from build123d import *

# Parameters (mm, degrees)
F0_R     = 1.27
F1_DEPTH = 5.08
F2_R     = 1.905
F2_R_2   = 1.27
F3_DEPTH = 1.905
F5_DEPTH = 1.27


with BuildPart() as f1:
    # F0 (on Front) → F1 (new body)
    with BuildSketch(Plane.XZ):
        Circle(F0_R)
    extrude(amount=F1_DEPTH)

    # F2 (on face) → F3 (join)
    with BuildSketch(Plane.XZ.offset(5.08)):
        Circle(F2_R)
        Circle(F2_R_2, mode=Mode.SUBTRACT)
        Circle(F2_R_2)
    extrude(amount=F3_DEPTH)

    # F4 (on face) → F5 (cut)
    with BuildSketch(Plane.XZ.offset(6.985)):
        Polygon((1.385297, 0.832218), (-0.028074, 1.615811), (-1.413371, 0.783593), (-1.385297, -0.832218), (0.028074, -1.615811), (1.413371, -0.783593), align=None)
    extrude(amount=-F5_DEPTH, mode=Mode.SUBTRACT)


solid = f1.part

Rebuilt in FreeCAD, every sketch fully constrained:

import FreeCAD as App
import Part
import Sketcher

V = App.Vector
Q = App.Units.Quantity

doc = App.newDocument("Part")
body = doc.addObject("PartDesign::Body", "Body")

# Sketch on XZ plane
sketch1 = doc.addObject("Sketcher::SketchObject", "Sketch")
body.addObject(sketch1)
sketch1.AttachmentSupport = (doc.XZ_Plane, [""])
sketch1.MapMode = "FlatFace"
sketch1.addGeometry(Part.Circle(V(0, 0, 0), V(0, 0, 1), 1.3), False)
sketch1.addConstraint(Sketcher.Constraint("Coincident", 0, 3, -1, 1))
sketch1.addConstraint(Sketcher.Constraint("Diameter", 0, Q("0.1 in")))
pad1 = doc.addObject("PartDesign::Pad", "Pad")
body.addObject(pad1)
pad1.Profile = sketch1
pad1.Length = Q("0.2 in")

# Sketch on XZ plane
sketch2 = doc.addObject("Sketcher::SketchObject", "Sketch001")
body.addObject(sketch2)
sketch2.AttachmentSupport = (doc.XZ_Plane, [""])
sketch2.MapMode = "FlatFace"
sketch2.AttachmentOffset = App.Placement(V(0, 0, 0.2 * 25.4), App.Rotation())
sketch2.addGeometry(Part.Circle(V(0, 0, 0), V(0, 0, 1), 1.9), False)
sketch2.addConstraint(Sketcher.Constraint("Coincident", 0, 3, -1, 1))
sketch2.addConstraint(Sketcher.Constraint("Diameter", 0, Q("0.15 in")))
pad2 = doc.addObject("PartDesign::Pad", "Pad001")
body.addObject(pad2)
pad2.Profile = sketch2
pad2.Length = Q("0.075 in")

# Sketch on XZ plane
sketch3 = doc.addObject("Sketcher::SketchObject", "Sketch002")
body.addObject(sketch3)
sketch3.AttachmentSupport = (doc.XZ_Plane, [""])
sketch3.MapMode = "FlatFace"
sketch3.AttachmentOffset = App.Placement(V(0, 0, 0.275 * 25.4), App.Rotation())
sketch3.addGeometry(Part.LineSegment(V(1.4, 0.8, 0), V(0, 1.6, 0)), False)
sketch3.addGeometry(Part.LineSegment(V(0, 1.6, 0), V(-1.4, 0.8, 0)), False)
sketch3.addGeometry(Part.LineSegment(V(-1.4, 0.8, 0), V(-1.4, -0.8, 0)), False)
sketch3.addGeometry(Part.LineSegment(V(-1.4, -0.8, 0), V(0, -1.6, 0)), False)
sketch3.addGeometry(Part.LineSegment(V(0, -1.6, 0), V(1.4, -0.8, 0)), False)
sketch3.addGeometry(Part.LineSegment(V(1.4, -0.8, 0), V(1.4, 0.8, 0)), False)
sketch3.addConstraint(Sketcher.Constraint("Coincident", 0, 2, 1, 1))
sketch3.addConstraint(Sketcher.Constraint("Coincident", 1, 2, 2, 1))
sketch3.addConstraint(Sketcher.Constraint("Coincident", 2, 2, 3, 1))
sketch3.addConstraint(Sketcher.Constraint("Coincident", 3, 2, 4, 1))
sketch3.addConstraint(Sketcher.Constraint("Coincident", 4, 2, 5, 1))
sketch3.addConstraint(Sketcher.Constraint("Coincident", 5, 2, 0, 1))
sketch3.addConstraint(Sketcher.Constraint("Symmetric", 0, 2, 3, 2, -1, 1))
sketch3.addConstraint(Sketcher.Constraint("Symmetric", 1, 2, 4, 2, -1, 1))
sketch3.addConstraint(Sketcher.Constraint("Symmetric", 2, 2, 5, 2, -1, 1))
sketch3.addConstraint(Sketcher.Constraint("Equal", 0, 1))
sketch3.addConstraint(Sketcher.Constraint("Equal", 1, 2))
sketch3.addConstraint(Sketcher.Constraint("DistanceY", -1, 1, 0, 2, Q("1.615811 mm")))
sketch3.addConstraint(Sketcher.Constraint("DistanceX", 1, 2, -1, 1, Q("1.413371 mm")))
sketch3.addConstraint(Sketcher.Constraint("DistanceY", 2, 2, -1, 1, Q("0.832218 mm")))
sketch3.addConstraint(Sketcher.Constraint("DistanceY", 1, 2, 0, 2, Q("0.832218 mm")))
pocket1 = doc.addObject("PartDesign::Pocket", "Pocket")
body.addObject(pocket1)
pocket1.Profile = sketch3
pocket1.Length = Q("0.05 in")

doc.recompute()
